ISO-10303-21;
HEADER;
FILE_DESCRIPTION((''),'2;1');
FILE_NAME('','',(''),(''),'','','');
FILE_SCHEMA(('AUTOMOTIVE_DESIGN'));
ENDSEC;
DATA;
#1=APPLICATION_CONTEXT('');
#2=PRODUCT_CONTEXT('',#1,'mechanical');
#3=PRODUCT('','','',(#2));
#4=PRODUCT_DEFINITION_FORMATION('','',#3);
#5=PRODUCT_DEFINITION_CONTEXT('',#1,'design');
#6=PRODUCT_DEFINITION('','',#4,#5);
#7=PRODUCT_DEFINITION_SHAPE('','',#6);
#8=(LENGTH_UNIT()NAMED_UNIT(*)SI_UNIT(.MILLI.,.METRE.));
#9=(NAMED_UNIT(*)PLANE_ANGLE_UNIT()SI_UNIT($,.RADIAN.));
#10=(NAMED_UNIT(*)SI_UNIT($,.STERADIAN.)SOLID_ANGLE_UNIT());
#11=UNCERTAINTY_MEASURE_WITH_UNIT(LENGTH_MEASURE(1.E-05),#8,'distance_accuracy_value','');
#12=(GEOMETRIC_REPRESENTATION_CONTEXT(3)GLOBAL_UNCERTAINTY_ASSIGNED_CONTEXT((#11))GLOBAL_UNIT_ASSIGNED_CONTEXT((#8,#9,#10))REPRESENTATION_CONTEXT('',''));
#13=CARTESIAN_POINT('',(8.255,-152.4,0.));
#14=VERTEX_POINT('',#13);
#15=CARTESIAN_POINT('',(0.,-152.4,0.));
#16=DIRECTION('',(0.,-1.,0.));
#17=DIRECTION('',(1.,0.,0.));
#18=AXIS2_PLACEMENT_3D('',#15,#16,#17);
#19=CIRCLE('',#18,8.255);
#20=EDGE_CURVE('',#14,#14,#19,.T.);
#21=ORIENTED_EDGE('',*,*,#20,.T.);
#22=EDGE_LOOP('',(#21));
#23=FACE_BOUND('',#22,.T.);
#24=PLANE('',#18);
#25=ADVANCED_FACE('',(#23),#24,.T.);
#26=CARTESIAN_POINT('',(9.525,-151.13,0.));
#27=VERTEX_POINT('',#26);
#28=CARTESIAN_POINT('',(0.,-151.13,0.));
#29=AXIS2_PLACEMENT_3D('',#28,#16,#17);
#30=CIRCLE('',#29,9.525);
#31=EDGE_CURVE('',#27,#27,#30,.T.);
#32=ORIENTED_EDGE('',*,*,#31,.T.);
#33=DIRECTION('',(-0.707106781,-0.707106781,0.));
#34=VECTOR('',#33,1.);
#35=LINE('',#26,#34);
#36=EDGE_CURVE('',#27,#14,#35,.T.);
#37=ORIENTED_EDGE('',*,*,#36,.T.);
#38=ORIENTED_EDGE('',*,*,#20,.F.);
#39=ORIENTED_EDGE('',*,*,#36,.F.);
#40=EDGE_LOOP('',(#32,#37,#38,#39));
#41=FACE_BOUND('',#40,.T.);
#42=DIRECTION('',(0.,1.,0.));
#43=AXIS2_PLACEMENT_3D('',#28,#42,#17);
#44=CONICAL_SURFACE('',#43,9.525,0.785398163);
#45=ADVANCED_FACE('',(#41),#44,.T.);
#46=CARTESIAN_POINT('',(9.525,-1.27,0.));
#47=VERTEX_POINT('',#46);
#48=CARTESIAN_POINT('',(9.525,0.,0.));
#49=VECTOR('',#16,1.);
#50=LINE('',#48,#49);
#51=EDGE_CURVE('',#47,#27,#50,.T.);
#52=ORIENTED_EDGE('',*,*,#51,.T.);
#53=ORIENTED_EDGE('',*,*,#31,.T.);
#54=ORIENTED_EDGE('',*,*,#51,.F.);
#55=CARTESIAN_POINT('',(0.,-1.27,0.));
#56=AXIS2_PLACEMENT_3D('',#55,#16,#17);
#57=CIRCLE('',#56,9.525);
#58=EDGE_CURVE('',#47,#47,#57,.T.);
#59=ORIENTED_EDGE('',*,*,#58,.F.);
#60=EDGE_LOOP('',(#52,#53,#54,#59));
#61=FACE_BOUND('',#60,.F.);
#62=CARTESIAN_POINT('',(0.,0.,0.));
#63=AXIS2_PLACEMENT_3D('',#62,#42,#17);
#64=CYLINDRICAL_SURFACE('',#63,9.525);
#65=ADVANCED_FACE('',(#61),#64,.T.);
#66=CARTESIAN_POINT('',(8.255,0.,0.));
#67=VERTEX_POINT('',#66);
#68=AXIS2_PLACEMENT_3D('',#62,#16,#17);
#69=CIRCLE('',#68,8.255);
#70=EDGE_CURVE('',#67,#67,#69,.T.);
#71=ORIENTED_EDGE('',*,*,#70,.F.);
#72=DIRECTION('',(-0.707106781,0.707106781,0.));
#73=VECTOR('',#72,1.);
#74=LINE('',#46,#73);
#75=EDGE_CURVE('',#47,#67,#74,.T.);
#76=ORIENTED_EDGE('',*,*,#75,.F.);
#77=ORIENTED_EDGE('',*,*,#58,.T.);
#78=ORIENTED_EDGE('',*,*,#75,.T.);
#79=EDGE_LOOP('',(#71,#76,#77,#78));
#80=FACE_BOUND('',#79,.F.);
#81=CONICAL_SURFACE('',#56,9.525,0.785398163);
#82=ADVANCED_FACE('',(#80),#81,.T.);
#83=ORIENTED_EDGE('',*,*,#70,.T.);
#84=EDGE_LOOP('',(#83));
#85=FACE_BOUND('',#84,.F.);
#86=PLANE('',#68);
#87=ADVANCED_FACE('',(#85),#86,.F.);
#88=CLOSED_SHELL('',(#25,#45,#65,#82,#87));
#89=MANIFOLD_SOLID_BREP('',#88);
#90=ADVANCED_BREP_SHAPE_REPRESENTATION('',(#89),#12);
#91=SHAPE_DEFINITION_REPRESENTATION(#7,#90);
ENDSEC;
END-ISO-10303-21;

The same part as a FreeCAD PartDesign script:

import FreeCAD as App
import Part
import Sketcher
Q = App.Units.Quantity


def edges_at(feature, points):
    """Names of the edges that pass closest to the given points."""
    edges = feature.Shape.Edges
    near = lambda p: min(range(len(edges)), key=lambda i: edges[i].distToShape(Part.Vertex(*p))[0])
    return sorted({f"Edge{near(p) + 1}" for p in points})

doc = App.newDocument("Part")
body = doc.addObject("PartDesign::Body", "Body")

sketch1 = body.newObject("Sketcher::SketchObject", "Sketch")
sketch1.AttachmentSupport = (doc.getObject("XZ_Plane"), [""])
sketch1.MapMode = "FlatFace"
sketch1.addGeometry(Part.Circle(App.Vector(0, 0, 0), App.Vector(0, 0, 1), 9.525), False)
sketch1.addConstraint(Sketcher.Constraint("Coincident", 0, 3, -1, 1))
sketch1.addConstraint(Sketcher.Constraint("Diameter", 0, Q("0.75 in")))
pad1 = body.newObject("PartDesign::Pad", "Pad")
pad1.Profile = sketch1
pad1.Length = Q("6 in")
doc.recompute()

chamfer = body.newObject("PartDesign::Chamfer", "Chamfer")
chamfer.Base = (pad1, edges_at(pad1, [(-9.525, 0, 0)]))
chamfer.ChamferType = "Two distances"
chamfer.Size = Q("0.05 in")
chamfer.Size2 = Q("0.05 in")
doc.recompute()

chamfer2 = body.newObject("PartDesign::Chamfer", "Chamfer001")
chamfer2.Base = (chamfer, edges_at(chamfer, [(-9.525, -152.4, 0)]))
chamfer2.ChamferType = "Two distances"
chamfer2.Size = Q("0.05 in")
chamfer2.Size2 = Q("0.05 in")

doc.recompute()
